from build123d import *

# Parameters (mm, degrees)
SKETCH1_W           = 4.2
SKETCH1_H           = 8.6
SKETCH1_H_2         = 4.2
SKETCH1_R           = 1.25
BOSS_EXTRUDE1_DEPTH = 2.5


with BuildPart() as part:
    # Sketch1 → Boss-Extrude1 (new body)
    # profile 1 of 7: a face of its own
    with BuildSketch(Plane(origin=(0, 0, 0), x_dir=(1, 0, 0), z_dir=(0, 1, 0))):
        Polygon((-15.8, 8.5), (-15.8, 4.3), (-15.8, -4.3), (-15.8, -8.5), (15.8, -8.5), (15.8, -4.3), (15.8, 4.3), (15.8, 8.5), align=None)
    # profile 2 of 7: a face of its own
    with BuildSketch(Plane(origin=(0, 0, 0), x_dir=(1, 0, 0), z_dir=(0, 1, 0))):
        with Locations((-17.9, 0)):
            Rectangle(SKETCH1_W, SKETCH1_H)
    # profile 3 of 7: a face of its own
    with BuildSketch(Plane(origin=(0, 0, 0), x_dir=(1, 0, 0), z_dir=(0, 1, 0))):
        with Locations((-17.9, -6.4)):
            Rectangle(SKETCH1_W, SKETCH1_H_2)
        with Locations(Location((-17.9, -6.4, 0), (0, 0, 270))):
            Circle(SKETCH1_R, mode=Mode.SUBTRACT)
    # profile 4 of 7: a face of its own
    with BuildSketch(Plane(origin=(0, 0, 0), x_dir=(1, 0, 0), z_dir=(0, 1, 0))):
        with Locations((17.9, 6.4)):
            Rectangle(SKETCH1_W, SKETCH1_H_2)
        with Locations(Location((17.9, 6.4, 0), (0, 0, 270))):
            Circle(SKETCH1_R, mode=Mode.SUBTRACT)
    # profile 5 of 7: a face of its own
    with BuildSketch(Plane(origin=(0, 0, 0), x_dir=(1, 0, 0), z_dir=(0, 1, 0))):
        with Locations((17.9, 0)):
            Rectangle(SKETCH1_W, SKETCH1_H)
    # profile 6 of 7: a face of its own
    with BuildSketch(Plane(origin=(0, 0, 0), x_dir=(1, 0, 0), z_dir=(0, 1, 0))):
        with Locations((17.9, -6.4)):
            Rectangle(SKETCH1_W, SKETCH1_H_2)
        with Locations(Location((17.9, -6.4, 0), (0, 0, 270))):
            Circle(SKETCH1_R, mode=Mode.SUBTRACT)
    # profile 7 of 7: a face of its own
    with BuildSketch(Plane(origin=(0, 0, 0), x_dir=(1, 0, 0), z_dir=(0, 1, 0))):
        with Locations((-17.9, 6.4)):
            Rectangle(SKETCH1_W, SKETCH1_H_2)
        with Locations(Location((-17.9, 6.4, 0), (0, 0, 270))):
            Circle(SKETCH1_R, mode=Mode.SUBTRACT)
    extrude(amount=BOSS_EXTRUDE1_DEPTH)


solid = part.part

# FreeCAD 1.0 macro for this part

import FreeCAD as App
import Part
import Sketcher


def add_polygon(sketch, points):
    """Adds a closed chain of lines whose ends are joined by coincident constraints."""
    first, n = sketch.GeometryCount, len(points)
    for a, b in zip(points, points[1:] + points[:1]):
        sketch.addGeometry(Part.LineSegment(App.Vector(*a, 0), App.Vector(*b, 0)), False)
    for i in range(n):
        sketch.addConstraint(Sketcher.Constraint("Coincident", first + i, 2, first + (i + 1) % n, 1))

doc = App.newDocument("Part")
body = doc.addObject("PartDesign::Body", "Body")

sketch1 = doc.addObject("Sketcher::SketchObject", "Sketch")
body.addObject(sketch1)
sketch1.AttachmentSupport = (doc.XZ_Plane, [""])
sketch1.MapMode = "FlatFace"
add_polygon(sketch1, [(20, 8.5), (20, -8.5), (-20, -8.5), (-20, 8.5)])
sketch1.addGeometry(Part.Circle(App.Vector(-17.9, -6.4, 0), App.Vector(0, 0, 1), 1.25), False)
sketch1.addGeometry(Part.Circle(App.Vector(-17.9, 6.4, 0), App.Vector(0, 0, 1), 1.25), False)
sketch1.addGeometry(Part.Circle(App.Vector(17.9, 6.4, 0), App.Vector(0, 0, 1), 1.25), False)
sketch1.addGeometry(Part.Circle(App.Vector(17.9, -6.4, 0), App.Vector(0, 0, 1), 1.25), False)
sketch1.addConstraint([
    Sketcher.Constraint("Vertical", 0),
    Sketcher.Constraint("Horizontal", 1),
    Sketcher.Constraint("Vertical", 2),
    Sketcher.Constraint("Horizontal", 3),
    Sketcher.Constraint("Equal", 4, 5),
    Sketcher.Constraint("Equal", 5, 6),
    Sketcher.Constraint("Equal", 6, 7),
    Sketcher.Constraint("Symmetric", 4, 3, 6, 3, -1, 1),
    Sketcher.Constraint("Symmetric", 5, 3, 7, 3, -1, 1),
    Sketcher.Constraint("Symmetric", 0, 2, 2, 2, -1, 1),
    Sketcher.Constraint("Symmetric", 5, 3, 6, 3, -2),
    Sketcher.Constraint("Diameter", 4, 2.5),
    Sketcher.Constraint("DistanceX", 1, 2, 1, 1, 40.0),
    Sketcher.Constraint("DistanceY", 0, 2, 0, 1, 17.0),
    Sketcher.Constraint("DistanceX", 4, 3, -1, 1, 17.9),
    Sketcher.Constraint("DistanceY", 4, 3, -1, 1, 6.4),
])
pad1 = doc.addObject("PartDesign::Pad", "Pad")
body.addObject(pad1)
pad1.Profile = sketch1
pad1.Length = 2.5
pad1.Reversed = True

doc.recompute()
